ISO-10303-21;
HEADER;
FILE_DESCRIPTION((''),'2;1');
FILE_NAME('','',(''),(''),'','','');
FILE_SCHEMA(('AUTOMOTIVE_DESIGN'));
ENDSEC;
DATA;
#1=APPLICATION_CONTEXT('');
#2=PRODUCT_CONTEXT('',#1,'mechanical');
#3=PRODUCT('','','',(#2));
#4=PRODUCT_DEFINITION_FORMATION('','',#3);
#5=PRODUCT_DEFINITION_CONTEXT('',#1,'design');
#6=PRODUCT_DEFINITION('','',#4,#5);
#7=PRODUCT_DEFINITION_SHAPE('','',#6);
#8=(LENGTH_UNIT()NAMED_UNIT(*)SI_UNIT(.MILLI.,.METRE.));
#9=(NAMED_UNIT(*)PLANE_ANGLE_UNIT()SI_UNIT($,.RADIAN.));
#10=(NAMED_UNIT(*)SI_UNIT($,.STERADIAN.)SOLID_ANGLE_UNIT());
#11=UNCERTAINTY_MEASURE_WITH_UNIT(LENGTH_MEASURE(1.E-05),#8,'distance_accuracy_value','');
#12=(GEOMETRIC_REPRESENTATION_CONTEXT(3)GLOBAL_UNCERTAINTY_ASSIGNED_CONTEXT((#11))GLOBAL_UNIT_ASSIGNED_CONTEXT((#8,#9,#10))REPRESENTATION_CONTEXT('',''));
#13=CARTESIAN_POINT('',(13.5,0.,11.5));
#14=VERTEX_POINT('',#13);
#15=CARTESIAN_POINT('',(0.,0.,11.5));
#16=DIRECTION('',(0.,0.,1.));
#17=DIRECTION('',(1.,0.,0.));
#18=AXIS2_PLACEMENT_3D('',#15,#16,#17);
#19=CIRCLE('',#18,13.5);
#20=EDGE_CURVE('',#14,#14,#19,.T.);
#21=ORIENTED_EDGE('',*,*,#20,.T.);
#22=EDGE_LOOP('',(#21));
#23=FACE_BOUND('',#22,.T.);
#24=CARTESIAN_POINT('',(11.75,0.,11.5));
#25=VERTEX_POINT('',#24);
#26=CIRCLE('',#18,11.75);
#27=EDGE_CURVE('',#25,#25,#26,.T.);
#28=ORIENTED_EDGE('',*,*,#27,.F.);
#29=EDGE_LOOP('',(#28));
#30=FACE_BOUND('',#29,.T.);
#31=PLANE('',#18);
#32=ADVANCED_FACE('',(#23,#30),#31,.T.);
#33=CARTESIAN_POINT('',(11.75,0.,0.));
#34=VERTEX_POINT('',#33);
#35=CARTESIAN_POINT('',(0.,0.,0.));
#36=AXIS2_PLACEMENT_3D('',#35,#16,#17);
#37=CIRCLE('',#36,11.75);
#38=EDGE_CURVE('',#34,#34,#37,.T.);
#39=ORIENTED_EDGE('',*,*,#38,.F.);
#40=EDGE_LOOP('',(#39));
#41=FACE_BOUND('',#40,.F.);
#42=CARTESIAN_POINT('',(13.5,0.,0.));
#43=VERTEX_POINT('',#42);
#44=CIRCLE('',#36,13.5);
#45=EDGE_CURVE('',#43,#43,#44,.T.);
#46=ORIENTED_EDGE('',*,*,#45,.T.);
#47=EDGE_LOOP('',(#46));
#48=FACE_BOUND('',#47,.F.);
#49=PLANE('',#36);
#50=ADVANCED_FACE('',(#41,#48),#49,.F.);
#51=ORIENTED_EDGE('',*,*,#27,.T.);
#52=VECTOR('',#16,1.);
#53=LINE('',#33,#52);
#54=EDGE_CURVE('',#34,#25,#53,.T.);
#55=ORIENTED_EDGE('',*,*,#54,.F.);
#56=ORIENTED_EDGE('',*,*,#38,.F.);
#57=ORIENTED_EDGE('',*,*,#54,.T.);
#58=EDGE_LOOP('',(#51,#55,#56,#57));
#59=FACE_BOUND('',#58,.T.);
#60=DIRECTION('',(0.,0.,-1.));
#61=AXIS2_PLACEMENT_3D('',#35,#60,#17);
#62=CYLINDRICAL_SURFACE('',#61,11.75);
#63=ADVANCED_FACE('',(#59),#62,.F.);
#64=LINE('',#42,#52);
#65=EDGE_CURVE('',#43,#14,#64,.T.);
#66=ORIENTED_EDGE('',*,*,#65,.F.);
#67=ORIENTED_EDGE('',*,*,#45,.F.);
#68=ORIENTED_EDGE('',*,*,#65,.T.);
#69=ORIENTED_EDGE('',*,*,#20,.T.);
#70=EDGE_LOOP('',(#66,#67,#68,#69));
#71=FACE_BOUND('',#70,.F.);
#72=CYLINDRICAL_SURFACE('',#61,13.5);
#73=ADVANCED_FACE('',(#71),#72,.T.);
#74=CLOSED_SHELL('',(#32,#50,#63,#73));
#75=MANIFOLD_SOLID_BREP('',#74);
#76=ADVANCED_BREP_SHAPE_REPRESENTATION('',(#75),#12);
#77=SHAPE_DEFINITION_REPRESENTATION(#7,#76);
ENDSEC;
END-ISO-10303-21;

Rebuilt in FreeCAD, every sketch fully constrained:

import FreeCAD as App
import Part
import Sketcher

V = App.Vector

doc = App.newDocument("Part")
params = doc.addObject("Spreadsheet::Sheet", "Params")
for row, (alias, value) in enumerate([
    ("sketch1_diameter", "27 mm"),
    ("sketch1_diameter2", "23.5 mm"),
    ("pad1_length", "11.5 mm"),
], start=1):
    params.set(f"A{row}", alias)
    params.set(f"B{row}", "=" + value)
    params.setAlias(f"B{row}", alias)

body = doc.addObject("PartDesign::Body", "Body")

# Sketch on XY plane
sketch1 = doc.addObject("Sketcher::SketchObject", "Sketch")
body.addObject(sketch1)
sketch1.AttachmentSupport = (doc.XY_Plane, [""])
sketch1.MapMode = "FlatFace"
sketch1.addGeometry(Part.Circle(V(0, 0, 0), V(0, 0, 1), 14), False)
sketch1.addGeometry(Part.Circle(V(0, 0, 0), V(0, 0, 1), 12), False)
sketch1.addConstraint(Sketcher.Constraint("Coincident", 0, 3, -1, 1))
sketch1.addConstraint(Sketcher.Constraint("Coincident", 1, 3, -1, 1))
sketch1.addConstraint(Sketcher.Constraint("Diameter", 0, 27.0))
sketch1.addConstraint(Sketcher.Constraint("Diameter", 1, 23.5))
sketch1.setExpression("Constraints[2]", "Params.sketch1_diameter")
sketch1.setExpression("Constraints[3]", "Params.sketch1_diameter2")
pad1 = doc.addObject("PartDesign::Pad", "Pad")
body.addObject(pad1)
pad1.Profile = sketch1
pad1.setExpression("Length", "Params.pad1_length")

doc.recompute()
